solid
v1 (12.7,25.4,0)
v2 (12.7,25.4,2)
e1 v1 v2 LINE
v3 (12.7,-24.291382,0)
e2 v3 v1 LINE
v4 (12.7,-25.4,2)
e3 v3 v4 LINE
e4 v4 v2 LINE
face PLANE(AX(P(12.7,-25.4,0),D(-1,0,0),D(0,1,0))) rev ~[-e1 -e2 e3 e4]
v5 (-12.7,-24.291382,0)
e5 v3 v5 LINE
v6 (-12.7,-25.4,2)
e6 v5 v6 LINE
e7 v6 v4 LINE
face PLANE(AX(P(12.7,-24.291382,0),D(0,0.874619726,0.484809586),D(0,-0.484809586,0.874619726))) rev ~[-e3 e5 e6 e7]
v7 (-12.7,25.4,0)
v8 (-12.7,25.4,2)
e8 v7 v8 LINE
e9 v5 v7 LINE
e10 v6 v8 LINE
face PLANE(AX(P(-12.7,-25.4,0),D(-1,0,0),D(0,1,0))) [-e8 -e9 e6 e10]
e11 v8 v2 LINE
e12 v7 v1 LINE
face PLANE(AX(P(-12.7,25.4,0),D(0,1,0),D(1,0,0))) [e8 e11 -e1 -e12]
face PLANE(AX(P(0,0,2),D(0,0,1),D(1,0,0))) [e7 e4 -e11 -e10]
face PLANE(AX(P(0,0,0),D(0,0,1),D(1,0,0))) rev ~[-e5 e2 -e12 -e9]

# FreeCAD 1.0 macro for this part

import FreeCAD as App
import Part
import Sketcher
from FreeCAD import Vector
Q = App.Units.Quantity

doc = App.newDocument("Part")
params = doc.addObject("Spreadsheet::Sheet", "Params")
for row, (alias, value) in enumerate([
    ("sketch1_width", "1 in"),
    ("sketch1_height", "2 in"),
    ("pad1_length", "2 mm"),
    ("pocket1_length", "1 in"),
], start=1):
    params.set(f"A{row}", alias)
    params.set(f"B{row}", "=" + value)
    params.setAlias(f"B{row}", alias)

body = doc.addObject("PartDesign::Body", "Body")

sketch1 = body.newObject("Sketcher::SketchObject", "Sketch")
sketch1.AttachmentSupport = (doc.getObject("XY_Plane"), [""])
sketch1.MapMode = "FlatFace"
sketch1.addGeometry([
    Part.LineSegment(Vector(-12.7, 25.4, 0), Vector(-12.7, -25.4, 0)),
    Part.LineSegment(Vector(-12.7, -25.4, 0), Vector(12.7, -25.4, 0)),
    Part.LineSegment(Vector(12.7, -25.4, 0), Vector(12.7, 25.4, 0)),
    Part.LineSegment(Vector(12.7, 25.4, 0), Vector(-12.7, 25.4, 0)),
], False)
sketch1.addConstraint([
    Sketcher.Constraint("Coincident", 0, 2, 1, 1),
    Sketcher.Constraint("Coincident", 1, 2, 2, 1),
    Sketcher.Constraint("Coincident", 2, 2, 3, 1),
    Sketcher.Constraint("Coincident", 3, 2, 0, 1),
    Sketcher.Constraint("Vertical", 0),
    Sketcher.Constraint("Horizontal", 1),
    Sketcher.Constraint("Vertical", 2),
    Sketcher.Constraint("Horizontal", 3),
    Sketcher.Constraint("Symmetric", 0, 2, 2, 2, -1, 1),
    Sketcher.Constraint("DistanceX", 1, 1, 1, 2, Q("1 in")),
    Sketcher.Constraint("DistanceY", 0, 2, 0, 1, Q("2 in")),
])
sketch1.setExpression("Constraints[9]", "Params.sketch1_width")
sketch1.setExpression("Constraints[10]", "Params.sketch1_height")
pad1 = body.newObject("PartDesign::Pad", "Pad")
pad1.Profile = sketch1
pad1.setExpression("Length", "Params.pad1_length")

sketch2 = body.newObject("Sketcher::SketchObject", "Sketch001")
sketch2.AttachmentSupport = (doc.getObject("YZ_Plane"), [""])
sketch2.MapMode = "FlatFace"
sketch2.AttachmentOffset = App.Placement(Vector(0, 0, 0.5 * 25.4), App.Rotation())
sketch2.addGeometry([
    Part.LineSegment(Vector(-24.291382, 0, 0), Vector(-25.4, 2, 0)),
    Part.LineSegment(Vector(-25.4, 2, 0), Vector(-25.4, 0, 0)),
    Part.LineSegment(Vector(-25.4, 0, 0), Vector(-24.291382, 0, 0)),
], False)
sketch2.addConstraint([
    Sketcher.Constraint("Coincident", 0, 2, 1, 1),
    Sketcher.Constraint("Coincident", 1, 2, 2, 1),
    Sketcher.Constraint("Coincident", 2, 2, 0, 1),
    Sketcher.Constraint("Vertical", 1),
    Sketcher.Constraint("Horizontal", 2),
    Sketcher.Constraint("PointOnObject", 1, 2, -1),
    Sketcher.Constraint("DistanceX", 0, 2, -1, 1, Q("1 in")),
    Sketcher.Constraint("Angle", 0, Q("118.999998 deg")),
    Sketcher.Constraint("DistanceY", 1, 2, 1, 1, Q("2 mm")),
])
pocket1 = body.newObject("PartDesign::Pocket", "Pocket")
pocket1.Profile = sketch2
pocket1.setExpression("Length", "Params.pocket1_length")

doc.recompute()
